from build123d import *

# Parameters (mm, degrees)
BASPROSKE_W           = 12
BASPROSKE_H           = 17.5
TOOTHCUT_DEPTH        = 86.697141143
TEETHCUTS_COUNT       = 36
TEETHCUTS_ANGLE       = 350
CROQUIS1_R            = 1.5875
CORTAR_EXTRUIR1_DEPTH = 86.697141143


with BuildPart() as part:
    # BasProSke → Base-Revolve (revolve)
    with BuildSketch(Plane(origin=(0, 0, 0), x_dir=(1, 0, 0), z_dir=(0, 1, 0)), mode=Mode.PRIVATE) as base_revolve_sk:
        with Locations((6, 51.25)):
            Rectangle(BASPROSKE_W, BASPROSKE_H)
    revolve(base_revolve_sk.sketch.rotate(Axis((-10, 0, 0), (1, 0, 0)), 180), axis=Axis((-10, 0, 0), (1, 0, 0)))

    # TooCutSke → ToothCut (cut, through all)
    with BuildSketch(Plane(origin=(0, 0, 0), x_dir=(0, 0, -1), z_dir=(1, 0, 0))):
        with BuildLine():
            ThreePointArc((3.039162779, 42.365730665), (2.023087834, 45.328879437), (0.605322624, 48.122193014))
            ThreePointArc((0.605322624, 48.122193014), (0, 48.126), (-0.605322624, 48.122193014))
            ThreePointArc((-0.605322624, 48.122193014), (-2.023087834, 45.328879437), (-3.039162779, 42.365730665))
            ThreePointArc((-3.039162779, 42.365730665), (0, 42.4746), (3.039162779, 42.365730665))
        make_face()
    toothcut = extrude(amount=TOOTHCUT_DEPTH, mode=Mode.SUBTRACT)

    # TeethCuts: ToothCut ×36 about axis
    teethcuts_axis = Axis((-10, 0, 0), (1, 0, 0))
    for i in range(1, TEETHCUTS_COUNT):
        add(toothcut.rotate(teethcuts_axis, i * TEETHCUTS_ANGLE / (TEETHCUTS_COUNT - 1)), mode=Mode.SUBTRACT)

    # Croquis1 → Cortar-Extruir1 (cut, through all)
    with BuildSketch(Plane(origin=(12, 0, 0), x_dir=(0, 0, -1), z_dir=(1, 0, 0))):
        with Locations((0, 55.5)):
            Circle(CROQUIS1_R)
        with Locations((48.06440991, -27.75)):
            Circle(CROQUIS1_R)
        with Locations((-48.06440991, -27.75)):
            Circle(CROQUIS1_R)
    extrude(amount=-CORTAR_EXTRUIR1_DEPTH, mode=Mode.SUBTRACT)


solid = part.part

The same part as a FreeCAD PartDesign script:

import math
import FreeCAD as App
import Part
import Sketcher

V = App.Vector


def add_polygon(sketch, points):
    """Adds a closed chain of lines whose ends are joined by coincident constraints."""
    first, n = sketch.GeometryCount, len(points)
    for a, b in zip(points, points[1:] + points[:1]):
        sketch.addGeometry(Part.LineSegment(App.Vector(*a, 0), App.Vector(*b, 0)), False)
    for i in range(n):
        sketch.addConstraint(Sketcher.Constraint("Coincident", first + i, 2, first + (i + 1) % n, 1))

doc = App.newDocument("Part")
params = doc.addObject("Spreadsheet::Sheet", "Params")
for row, (alias, value) in enumerate([
    ("sketch1_width", "12 mm"),
    ("sketch1_height", "17.5 mm"),
    ("revolution_angle", "360 deg"),
    ("sketch2_radius", "22.5 mm"),
], start=1):
    params.set(f"A{row}", alias)
    params.set(f"B{row}", "=" + value)
    params.setAlias(f"B{row}", alias)

body = doc.addObject("PartDesign::Body", "Body")

# Sketch on XZ plane
sketch1 = body.newObject("Sketcher::SketchObject", "Sketch")
sketch1.AttachmentSupport = (doc.getObject("XZ_Plane"), [""])
sketch1.MapMode = "FlatFace"
add_polygon(sketch1, [(0, -60), (0, -42), (12, -42), (12, -60)])  # lines 0-3
sketch1.addConstraint([
    Sketcher.Constraint("Vertical", 0),
    Sketcher.Constraint("Horizontal", 1),
    Sketcher.Constraint("Vertical", 2),
    Sketcher.Constraint("Horizontal", 3),
    Sketcher.Constraint("PointOnObject", 0, 2, -2),
    Sketcher.Constraint("DistanceX", 1, 1, 1, 2, 12.0),
    Sketcher.Constraint("DistanceY", 0, 1, 0, 2, 17.5),
    Sketcher.Constraint("DistanceY", 2, 2, -1, 1, 60.0),
])
sketch1.setExpression("Constraints[9]", "Params.sketch1_width")
sketch1.setExpression("Constraints[10]", "Params.sketch1_height")
revolution = body.newObject("PartDesign::Revolution", "Revolution")
revolution.Profile = sketch1
revolution.ReferenceAxis = (sketch1, ["H_Axis"])
revolution.setExpression("Angle", "Params.revolution_angle")

# Sketch on YZ plane
sketch2 = body.newObject("Sketcher::SketchObject", "Sketch001")
sketch2.AttachmentSupport = (doc.getObject("YZ_Plane"), [""])
sketch2.MapMode = "FlatFace"
sketch2.addGeometry([
    Part.ArcOfCircle(Part.Circle(V(36.6, 18.7, 0), V(0, 0, 1), 22.5), math.radians(-75.06), math.radians(-59.1)),
    Part.ArcOfCircle(Part.Circle(V(0, 0, 0), V(0, 0, 1), 48.1), math.radians(-0.72), math.radians(0.72)),
    Part.ArcOfCircle(Part.Circle(V(36.6, -18.7, 0), V(0, 0, 1), 22.5), math.radians(59.1), math.radians(75.06)),
    Part.ArcOfCircle(Part.Circle(V(0, 0, 0), V(0, 0, 1), 42.5), math.radians(-4.1), math.radians(4.1)),
], False)
sketch2.addConstraint([
    Sketcher.Constraint("Coincident", 0, 2, 1, 1),
    Sketcher.Constraint("Coincident", 1, 2, 2, 1),
    Sketcher.Constraint("Coincident", 2, 2, 3, 2),
    Sketcher.Constraint("Coincident", 3, 1, 0, 1),
    Sketcher.Constraint("Coincident", 1, 3, -1, 1),
    Sketcher.Constraint("Coincident", 3, 3, -1, 1),
    Sketcher.Constraint("Equal", 0, 2),
    Sketcher.Constraint("Symmetric", 0, 3, 2, 3, -1),
    Sketcher.Constraint("Radius", 0, 22.5),
    Sketcher.Constraint("Radius", 3, 42.4746),
    Sketcher.Constraint("Radius", 1, 48.125994),
    Sketcher.Constraint("DistanceY", 2, 3, 0, 2, 18.095401),
    Sketcher.Constraint("DistanceX", 2, 3, 0, 2, 11.55537),
])
sketch2.setExpression("Constraints[8]", "Params.sketch2_radius")
pocket1 = body.newObject("PartDesign::Pocket", "Pocket")
pocket1.Profile = sketch2
pocket1.Type = "ThroughAll"
pocket1.Reversed = True
doc.recompute()

polarpattern = body.newObject("PartDesign::PolarPattern", "PolarPattern")
polarpattern.Originals = [pocket1]
polarpattern.Axis = (doc.getObject("X_Axis"), [""])
polarpattern.Angle = 360
polarpattern.Occurrences = 36
body.Tip = polarpattern

# Sketch on YZ plane
sketch3 = body.newObject("Sketcher::SketchObject", "Sketch002")
sketch3.AttachmentSupport = (doc.getObject("YZ_Plane"), [""])
sketch3.MapMode = "FlatFace"
sketch3.AttachmentOffset = App.Placement(V(0, 0, 12), App.Rotation())
sketch3.addGeometry([
    Part.Circle(V(55.5, 0, 0), V(0, 0, 1), 1.6),
    Part.Circle(V(-27.8, -48.1, 0), V(0, 0, 1), 1.6),
    Part.Circle(V(-27.8, 48.1, 0), V(0, 0, 1), 1.6),
], False)
sketch3.addConstraint([
    Sketcher.Constraint("Equal", 0, 1),
    Sketcher.Constraint("Equal", 1, 2),
    Sketcher.Constraint("Symmetric", 1, 3, 2, 3, -1),
    Sketcher.Constraint("PointOnObject", 0, 3, -1),
    Sketcher.Constraint("Diameter", 0, 3.175),
    Sketcher.Constraint("DistanceX", -1, 1, 0, 3, 55.5),
    Sketcher.Constraint("DistanceX", 1, 3, -1, 1, 27.75),
    Sketcher.Constraint("DistanceY", 1, 3, -1, 1, 48.06441),
])
pocket2 = body.newObject("PartDesign::Pocket", "Pocket001")
pocket2.Profile = sketch3
pocket2.Type = "ThroughAll"

doc.recompute()
